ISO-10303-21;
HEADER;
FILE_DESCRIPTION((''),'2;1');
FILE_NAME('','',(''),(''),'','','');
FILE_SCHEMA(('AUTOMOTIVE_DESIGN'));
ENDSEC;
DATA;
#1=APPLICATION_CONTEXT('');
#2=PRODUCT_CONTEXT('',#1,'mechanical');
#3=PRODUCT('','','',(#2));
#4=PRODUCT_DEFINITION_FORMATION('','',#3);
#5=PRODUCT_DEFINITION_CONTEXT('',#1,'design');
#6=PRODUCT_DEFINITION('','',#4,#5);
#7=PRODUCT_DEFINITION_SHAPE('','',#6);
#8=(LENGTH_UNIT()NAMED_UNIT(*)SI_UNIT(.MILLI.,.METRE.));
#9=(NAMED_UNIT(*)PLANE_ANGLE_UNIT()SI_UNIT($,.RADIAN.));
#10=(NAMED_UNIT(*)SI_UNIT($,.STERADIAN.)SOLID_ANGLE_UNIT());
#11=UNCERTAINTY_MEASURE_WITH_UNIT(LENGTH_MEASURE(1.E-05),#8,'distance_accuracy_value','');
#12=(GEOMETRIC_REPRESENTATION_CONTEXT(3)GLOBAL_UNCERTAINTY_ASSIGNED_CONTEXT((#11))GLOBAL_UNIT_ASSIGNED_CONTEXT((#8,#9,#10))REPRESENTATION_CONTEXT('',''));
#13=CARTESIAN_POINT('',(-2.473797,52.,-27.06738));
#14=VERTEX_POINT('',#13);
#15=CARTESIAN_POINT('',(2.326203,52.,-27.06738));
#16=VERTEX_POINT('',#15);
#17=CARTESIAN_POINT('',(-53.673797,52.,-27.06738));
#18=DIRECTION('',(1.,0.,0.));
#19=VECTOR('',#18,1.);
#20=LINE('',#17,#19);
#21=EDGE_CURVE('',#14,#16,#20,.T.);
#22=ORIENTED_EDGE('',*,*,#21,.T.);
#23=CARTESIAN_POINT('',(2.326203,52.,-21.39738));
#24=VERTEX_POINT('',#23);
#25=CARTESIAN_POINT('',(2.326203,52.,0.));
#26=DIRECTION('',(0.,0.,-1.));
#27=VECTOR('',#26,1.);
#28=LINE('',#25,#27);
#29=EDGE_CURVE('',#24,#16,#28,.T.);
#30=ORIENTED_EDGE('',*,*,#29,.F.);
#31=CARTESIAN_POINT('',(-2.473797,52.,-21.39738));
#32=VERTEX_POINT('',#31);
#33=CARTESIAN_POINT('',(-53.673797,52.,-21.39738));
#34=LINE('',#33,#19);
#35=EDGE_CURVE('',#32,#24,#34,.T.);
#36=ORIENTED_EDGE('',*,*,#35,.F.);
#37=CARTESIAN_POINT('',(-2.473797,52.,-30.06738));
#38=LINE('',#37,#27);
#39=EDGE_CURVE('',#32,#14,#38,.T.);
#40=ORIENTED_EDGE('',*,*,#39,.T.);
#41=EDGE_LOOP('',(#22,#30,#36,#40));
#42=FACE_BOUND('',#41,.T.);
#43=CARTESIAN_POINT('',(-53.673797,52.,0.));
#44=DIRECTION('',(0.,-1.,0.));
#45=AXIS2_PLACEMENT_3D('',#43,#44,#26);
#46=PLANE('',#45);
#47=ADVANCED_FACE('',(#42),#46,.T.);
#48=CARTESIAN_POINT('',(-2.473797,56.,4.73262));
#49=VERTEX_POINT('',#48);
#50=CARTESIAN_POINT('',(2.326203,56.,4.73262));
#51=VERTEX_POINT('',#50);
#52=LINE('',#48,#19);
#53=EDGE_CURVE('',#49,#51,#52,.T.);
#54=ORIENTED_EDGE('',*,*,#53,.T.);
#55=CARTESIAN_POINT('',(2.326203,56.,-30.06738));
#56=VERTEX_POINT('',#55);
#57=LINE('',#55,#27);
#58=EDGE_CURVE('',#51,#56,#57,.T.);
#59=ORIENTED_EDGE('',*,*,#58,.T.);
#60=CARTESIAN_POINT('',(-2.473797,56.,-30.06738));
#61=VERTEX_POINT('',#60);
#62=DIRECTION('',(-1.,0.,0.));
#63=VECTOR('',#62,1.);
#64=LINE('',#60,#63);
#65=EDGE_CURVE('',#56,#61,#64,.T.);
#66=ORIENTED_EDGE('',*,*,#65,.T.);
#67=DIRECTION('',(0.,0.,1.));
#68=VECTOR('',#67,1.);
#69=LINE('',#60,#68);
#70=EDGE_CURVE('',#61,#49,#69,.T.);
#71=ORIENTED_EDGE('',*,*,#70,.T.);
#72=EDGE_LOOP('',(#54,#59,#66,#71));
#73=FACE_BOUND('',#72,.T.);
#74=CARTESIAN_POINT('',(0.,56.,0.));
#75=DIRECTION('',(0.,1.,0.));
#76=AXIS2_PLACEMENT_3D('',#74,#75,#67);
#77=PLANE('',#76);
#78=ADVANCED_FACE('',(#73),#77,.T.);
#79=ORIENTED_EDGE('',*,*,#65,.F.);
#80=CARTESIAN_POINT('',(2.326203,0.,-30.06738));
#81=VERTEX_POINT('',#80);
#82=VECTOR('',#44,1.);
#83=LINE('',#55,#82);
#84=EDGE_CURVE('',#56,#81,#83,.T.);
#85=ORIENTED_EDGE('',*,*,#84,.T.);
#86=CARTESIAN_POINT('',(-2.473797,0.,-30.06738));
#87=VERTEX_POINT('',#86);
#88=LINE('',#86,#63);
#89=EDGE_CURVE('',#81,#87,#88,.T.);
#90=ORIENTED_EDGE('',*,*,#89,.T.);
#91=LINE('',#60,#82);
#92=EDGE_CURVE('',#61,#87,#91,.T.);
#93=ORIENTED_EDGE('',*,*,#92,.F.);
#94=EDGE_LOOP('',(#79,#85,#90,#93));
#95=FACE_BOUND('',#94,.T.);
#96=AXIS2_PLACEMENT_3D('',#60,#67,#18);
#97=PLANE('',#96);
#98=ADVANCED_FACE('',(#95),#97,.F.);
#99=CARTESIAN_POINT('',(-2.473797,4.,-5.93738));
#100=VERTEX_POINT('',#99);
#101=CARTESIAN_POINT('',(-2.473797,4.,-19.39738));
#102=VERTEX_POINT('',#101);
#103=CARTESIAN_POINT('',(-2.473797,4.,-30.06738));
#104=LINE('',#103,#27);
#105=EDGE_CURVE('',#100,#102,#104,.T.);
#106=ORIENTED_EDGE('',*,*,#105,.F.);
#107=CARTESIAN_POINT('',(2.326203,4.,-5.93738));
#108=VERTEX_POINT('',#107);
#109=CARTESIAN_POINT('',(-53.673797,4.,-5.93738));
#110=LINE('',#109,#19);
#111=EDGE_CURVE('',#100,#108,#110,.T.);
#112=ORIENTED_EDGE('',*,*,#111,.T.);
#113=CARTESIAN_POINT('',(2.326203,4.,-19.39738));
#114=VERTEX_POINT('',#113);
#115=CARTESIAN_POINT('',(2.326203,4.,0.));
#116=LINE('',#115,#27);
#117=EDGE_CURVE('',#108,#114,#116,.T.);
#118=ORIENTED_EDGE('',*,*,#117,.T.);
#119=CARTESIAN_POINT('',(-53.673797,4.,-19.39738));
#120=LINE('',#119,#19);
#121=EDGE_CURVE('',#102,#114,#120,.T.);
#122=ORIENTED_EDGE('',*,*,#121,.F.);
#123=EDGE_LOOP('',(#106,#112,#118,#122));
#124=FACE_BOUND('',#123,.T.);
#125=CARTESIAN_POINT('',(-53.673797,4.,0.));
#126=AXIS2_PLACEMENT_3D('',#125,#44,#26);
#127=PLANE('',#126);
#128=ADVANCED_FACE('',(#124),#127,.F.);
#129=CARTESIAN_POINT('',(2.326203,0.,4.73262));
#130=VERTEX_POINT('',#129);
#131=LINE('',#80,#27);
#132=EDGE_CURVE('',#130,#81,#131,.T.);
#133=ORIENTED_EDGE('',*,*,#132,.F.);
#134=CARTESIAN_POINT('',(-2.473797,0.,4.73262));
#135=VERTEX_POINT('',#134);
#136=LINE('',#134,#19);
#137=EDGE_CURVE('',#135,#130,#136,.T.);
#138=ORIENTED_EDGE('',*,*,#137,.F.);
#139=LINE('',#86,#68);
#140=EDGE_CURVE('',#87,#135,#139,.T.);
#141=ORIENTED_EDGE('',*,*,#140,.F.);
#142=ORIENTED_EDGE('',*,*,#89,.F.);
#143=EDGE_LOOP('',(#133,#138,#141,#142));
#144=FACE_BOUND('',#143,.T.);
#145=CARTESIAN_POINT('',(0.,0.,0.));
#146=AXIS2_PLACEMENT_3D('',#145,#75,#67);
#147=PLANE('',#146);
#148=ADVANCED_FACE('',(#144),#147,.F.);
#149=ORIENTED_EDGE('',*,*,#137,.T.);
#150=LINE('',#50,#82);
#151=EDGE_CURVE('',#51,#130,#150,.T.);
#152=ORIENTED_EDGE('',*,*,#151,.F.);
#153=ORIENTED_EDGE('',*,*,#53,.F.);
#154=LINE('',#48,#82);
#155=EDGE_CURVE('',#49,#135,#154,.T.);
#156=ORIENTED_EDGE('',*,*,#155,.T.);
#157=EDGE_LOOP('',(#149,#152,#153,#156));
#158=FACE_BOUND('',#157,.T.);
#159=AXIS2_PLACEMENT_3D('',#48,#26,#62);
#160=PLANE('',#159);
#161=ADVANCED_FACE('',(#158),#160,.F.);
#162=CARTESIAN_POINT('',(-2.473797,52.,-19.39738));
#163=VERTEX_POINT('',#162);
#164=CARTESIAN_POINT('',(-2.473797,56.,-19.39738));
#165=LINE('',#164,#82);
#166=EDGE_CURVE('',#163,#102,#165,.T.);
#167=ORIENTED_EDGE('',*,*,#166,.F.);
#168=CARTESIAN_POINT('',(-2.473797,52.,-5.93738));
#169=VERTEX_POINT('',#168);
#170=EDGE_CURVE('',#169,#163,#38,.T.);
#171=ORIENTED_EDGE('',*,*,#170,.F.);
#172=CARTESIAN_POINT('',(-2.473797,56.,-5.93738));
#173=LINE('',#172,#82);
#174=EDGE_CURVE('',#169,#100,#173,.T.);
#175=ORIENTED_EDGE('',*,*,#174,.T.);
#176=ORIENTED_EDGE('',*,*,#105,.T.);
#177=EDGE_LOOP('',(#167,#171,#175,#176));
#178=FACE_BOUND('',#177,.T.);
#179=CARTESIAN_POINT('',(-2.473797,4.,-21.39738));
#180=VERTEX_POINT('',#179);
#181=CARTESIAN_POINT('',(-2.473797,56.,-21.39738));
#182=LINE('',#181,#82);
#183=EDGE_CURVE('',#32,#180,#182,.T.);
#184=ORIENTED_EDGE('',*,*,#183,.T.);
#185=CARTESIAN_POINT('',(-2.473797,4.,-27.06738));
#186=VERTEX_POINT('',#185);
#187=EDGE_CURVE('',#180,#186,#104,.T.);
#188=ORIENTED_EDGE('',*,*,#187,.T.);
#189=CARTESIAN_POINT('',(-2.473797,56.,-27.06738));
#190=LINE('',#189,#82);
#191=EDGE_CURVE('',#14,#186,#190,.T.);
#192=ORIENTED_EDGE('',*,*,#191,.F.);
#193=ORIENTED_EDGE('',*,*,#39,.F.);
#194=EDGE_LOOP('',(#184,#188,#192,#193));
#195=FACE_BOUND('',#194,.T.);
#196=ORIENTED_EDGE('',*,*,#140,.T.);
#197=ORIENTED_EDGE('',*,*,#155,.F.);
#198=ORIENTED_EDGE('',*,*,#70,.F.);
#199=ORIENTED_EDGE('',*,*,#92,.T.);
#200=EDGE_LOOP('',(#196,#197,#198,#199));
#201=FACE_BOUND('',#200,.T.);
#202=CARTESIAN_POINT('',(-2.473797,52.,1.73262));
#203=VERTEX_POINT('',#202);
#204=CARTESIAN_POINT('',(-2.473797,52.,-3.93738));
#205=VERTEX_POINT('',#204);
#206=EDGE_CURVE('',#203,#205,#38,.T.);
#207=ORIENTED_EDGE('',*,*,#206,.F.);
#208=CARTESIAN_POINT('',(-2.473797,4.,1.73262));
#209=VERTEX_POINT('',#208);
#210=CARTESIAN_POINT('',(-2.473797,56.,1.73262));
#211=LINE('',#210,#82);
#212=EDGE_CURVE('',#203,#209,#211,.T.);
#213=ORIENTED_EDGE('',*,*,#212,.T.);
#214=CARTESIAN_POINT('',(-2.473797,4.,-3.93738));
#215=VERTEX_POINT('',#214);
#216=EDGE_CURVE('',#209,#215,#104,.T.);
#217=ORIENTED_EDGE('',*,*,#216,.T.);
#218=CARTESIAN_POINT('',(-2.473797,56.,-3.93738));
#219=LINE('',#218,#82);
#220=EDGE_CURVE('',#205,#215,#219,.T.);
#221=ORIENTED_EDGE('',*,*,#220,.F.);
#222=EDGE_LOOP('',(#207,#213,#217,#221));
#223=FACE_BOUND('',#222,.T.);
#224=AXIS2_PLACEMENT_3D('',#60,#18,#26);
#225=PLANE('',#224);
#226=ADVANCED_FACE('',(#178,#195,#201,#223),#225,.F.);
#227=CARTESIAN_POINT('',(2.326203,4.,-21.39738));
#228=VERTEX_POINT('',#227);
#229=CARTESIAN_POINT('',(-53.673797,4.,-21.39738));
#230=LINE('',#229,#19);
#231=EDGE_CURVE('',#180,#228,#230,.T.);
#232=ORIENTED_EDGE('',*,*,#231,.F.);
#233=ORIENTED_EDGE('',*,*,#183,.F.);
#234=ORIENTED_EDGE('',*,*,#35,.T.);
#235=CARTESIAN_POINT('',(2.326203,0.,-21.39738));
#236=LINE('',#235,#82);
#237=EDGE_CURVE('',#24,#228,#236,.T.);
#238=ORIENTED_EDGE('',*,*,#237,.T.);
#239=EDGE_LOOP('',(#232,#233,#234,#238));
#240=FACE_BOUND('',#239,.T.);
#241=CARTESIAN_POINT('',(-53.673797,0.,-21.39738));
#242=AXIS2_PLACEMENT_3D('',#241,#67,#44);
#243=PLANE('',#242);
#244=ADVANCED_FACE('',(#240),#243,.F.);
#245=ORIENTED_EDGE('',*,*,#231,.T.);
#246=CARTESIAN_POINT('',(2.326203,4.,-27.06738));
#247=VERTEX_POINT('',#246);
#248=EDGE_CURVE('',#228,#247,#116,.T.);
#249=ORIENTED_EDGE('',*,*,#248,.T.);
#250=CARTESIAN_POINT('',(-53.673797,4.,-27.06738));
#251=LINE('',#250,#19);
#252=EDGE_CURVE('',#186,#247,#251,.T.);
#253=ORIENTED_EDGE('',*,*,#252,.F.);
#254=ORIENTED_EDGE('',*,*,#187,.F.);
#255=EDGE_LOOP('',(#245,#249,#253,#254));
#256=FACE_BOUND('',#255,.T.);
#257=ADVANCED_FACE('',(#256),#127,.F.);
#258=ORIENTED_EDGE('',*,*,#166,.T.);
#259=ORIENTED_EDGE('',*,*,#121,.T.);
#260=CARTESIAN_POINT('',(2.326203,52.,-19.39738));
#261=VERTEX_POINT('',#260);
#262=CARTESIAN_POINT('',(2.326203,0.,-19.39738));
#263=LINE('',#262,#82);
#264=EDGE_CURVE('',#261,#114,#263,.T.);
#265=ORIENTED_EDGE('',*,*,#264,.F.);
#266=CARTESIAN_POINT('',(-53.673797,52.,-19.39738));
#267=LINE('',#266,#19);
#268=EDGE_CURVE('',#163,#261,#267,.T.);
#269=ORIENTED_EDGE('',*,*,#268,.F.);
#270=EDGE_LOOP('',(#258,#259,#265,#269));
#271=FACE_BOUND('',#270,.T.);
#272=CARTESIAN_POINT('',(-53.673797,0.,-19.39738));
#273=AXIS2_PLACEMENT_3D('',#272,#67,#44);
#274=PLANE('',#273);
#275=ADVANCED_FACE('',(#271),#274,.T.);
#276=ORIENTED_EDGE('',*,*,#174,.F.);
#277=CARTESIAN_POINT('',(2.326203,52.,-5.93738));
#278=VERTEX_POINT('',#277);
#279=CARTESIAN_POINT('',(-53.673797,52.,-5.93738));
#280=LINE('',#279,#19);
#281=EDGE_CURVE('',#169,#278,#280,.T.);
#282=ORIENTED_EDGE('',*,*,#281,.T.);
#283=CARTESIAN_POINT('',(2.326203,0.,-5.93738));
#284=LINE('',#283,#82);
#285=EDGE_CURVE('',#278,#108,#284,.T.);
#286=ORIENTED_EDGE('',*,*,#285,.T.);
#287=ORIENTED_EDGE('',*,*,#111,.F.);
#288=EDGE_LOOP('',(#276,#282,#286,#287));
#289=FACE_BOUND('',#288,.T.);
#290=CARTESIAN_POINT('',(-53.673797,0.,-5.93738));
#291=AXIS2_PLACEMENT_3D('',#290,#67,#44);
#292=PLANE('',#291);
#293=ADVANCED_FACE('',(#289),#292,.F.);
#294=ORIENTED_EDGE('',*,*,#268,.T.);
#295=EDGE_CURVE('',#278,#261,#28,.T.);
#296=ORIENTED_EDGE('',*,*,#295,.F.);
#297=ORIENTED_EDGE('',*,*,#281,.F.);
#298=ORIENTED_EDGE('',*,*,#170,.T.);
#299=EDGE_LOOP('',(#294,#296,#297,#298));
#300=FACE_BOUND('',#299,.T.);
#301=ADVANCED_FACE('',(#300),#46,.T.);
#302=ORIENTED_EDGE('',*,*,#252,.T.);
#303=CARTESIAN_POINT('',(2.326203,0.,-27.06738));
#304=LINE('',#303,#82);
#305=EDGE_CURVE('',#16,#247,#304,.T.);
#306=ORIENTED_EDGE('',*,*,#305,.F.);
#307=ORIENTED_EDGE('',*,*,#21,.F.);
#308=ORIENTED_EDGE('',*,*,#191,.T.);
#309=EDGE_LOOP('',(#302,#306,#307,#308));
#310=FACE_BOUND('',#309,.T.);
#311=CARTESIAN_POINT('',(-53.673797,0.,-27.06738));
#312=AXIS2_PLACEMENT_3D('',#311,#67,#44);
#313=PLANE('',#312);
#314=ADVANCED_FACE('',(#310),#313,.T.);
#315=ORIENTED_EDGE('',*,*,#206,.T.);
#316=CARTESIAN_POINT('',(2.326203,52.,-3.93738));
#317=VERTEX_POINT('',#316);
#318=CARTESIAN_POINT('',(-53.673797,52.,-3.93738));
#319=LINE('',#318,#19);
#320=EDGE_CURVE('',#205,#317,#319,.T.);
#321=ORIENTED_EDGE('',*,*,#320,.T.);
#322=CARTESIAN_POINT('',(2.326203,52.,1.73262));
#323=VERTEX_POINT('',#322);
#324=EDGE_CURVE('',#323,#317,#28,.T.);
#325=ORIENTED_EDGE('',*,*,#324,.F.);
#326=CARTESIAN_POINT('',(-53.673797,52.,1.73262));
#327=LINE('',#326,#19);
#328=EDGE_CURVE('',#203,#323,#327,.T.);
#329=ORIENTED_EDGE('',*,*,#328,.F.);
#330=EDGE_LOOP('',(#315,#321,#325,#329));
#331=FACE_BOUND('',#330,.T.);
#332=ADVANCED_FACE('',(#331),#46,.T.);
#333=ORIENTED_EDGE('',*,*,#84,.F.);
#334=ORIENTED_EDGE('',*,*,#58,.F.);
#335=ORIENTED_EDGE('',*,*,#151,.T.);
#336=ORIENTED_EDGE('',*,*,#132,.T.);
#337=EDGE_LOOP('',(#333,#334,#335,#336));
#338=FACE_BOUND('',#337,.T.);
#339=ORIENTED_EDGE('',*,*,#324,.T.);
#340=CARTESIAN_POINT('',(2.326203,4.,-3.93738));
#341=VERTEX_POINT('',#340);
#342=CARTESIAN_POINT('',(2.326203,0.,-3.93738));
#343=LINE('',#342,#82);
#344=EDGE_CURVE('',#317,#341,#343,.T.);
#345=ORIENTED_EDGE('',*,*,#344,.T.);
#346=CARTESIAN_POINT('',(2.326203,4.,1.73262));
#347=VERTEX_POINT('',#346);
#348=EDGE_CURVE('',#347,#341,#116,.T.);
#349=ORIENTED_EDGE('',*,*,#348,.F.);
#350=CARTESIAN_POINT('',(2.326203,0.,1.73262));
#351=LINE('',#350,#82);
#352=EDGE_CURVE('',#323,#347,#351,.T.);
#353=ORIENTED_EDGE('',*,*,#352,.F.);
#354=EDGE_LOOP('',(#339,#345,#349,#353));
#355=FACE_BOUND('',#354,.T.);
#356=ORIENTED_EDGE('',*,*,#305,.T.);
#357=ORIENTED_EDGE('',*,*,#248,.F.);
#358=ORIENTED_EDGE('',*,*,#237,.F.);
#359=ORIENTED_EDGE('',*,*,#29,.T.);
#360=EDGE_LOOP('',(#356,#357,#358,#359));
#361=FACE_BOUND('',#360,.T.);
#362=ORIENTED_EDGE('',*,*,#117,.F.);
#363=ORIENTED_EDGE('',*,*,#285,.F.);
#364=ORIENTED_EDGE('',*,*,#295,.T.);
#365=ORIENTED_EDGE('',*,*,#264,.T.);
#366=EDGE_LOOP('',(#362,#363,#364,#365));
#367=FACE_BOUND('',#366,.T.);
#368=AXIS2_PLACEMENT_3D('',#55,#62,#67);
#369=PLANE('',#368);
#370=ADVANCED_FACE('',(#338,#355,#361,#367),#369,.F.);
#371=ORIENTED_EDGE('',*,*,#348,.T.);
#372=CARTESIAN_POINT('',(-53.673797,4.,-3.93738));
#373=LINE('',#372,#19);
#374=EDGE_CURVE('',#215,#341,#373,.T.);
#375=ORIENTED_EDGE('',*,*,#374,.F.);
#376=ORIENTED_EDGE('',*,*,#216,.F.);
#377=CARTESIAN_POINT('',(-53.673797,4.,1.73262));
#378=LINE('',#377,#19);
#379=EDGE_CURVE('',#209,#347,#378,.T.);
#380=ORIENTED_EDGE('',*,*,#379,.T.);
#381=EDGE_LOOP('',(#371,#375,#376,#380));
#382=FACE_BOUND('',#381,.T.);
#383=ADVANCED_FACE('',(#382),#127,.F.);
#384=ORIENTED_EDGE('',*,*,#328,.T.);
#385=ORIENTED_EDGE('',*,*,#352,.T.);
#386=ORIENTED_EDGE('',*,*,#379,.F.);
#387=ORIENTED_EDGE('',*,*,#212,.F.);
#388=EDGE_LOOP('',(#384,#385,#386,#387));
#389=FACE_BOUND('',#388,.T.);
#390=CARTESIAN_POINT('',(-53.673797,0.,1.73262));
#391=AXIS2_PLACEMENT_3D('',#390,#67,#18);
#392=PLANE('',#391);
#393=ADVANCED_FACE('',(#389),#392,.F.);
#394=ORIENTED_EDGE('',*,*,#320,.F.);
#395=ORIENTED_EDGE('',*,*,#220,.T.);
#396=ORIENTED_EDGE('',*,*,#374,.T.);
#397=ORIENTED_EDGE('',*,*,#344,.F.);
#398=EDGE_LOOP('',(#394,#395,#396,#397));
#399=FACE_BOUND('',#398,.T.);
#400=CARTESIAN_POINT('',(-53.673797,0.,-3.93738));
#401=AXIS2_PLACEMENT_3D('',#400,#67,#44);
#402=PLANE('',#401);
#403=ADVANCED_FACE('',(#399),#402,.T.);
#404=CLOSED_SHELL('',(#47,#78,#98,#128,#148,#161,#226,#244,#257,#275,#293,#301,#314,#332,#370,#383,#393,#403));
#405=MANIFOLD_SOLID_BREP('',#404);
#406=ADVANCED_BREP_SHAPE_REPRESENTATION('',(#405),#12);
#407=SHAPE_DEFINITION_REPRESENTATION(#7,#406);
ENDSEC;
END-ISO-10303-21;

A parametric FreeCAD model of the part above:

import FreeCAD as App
import Part
import Sketcher
from FreeCAD import Vector


def add_polygon(sketch, points):
    """Adds a closed chain of lines whose ends are joined by coincident constraints."""
    first, n = sketch.GeometryCount, len(points)
    for a, b in zip(points, points[1:] + points[:1]):
        sketch.addGeometry(Part.LineSegment(App.Vector(*a, 0), App.Vector(*b, 0)), False)
    for i in range(n):
        sketch.addConstraint(Sketcher.Constraint("Coincident", first + i, 2, first + (i + 1) % n, 1))

doc = App.newDocument("Part")
body = doc.addObject("PartDesign::Body", "Body")

# Sketch on XZ plane
sketch1 = body.newObject("Sketcher::SketchObject", "Sketch")
sketch1.AttachmentSupport = (doc.getObject("XZ_Plane"), [""])
sketch1.MapMode = "FlatFace"
add_polygon(sketch1, [(-2.473797, -30.06738), (-2.473797, 4.73262), (2.326203, 4.73262), (2.326203, -30.06738)])  # lines 0-3
sketch1.addConstraint(Sketcher.Constraint("Vertical", 0))
sketch1.addConstraint(Sketcher.Constraint("Horizontal", 1))
sketch1.addConstraint(Sketcher.Constraint("Vertical", 2))
sketch1.addConstraint(Sketcher.Constraint("Horizontal", 3))
sketch1.addConstraint(Sketcher.Constraint("DistanceX", 1, 1, 1, 2, 4.8))
sketch1.addConstraint(Sketcher.Constraint("DistanceY", 0, 1, 0, 2, 34.8))
sketch1.addConstraint(Sketcher.Constraint("DistanceY", -1, 1, 0, 2, 4.73262))
sketch1.addConstraint(Sketcher.Constraint("DistanceX", 0, 2, -1, 1, 2.473797))
pad1 = body.newObject("PartDesign::Pad", "Pad")
pad1.Profile = sketch1
pad1.Length = 56
pad1.Reversed = True

# Sketch on YZ plane
sketch2 = body.newObject("Sketcher::SketchObject", "Sketch001")
sketch2.AttachmentSupport = (doc.getObject("YZ_Plane"), [""])
sketch2.MapMode = "FlatFace"
sketch2.AttachmentOffset = App.Placement(Vector(0, 0, 2.326203), App.Rotation())
add_polygon(sketch2, [(52, 1.73262), (4, 1.73262), (4, -3.93738), (52, -3.93738)])  # lines 0-3
add_polygon(sketch2, [(52, -5.93738), (4, -5.93738), (4, -19.39738), (52, -19.39738)])  # lines 4-7
add_polygon(sketch2, [(52, -21.39738), (4, -21.39738), (4, -27.06738), (52, -27.06738)])  # lines 8-11
sketch2.addConstraint(Sketcher.Constraint("Horizontal", 0))
sketch2.addConstraint(Sketcher.Constraint("Vertical", 1))
sketch2.addConstraint(Sketcher.Constraint("Horizontal", 2))
sketch2.addConstraint(Sketcher.Constraint("Vertical", 3))
sketch2.addConstraint(Sketcher.Constraint("Horizontal", 4))
sketch2.addConstraint(Sketcher.Constraint("Vertical", 5))
sketch2.addConstraint(Sketcher.Constraint("Horizontal", 6))
sketch2.addConstraint(Sketcher.Constraint("Vertical", 7))
sketch2.addConstraint(Sketcher.Constraint("Horizontal", 8))
sketch2.addConstraint(Sketcher.Constraint("Vertical", 9))
sketch2.addConstraint(Sketcher.Constraint("Horizontal", 10))
sketch2.addConstraint(Sketcher.Constraint("Vertical", 11))
sketch2.addConstraint(Sketcher.Constraint("Vertical", 1, 2, 4, 2))
sketch2.addConstraint(Sketcher.Constraint("Vertical", 3, 2, 6, 2))
sketch2.addConstraint(Sketcher.Constraint("Vertical", 5, 2, 8, 2))
sketch2.addConstraint(Sketcher.Constraint("Vertical", 7, 2, 10, 2))
sketch2.addConstraint(Sketcher.Constraint("Equal", 3, 9))
sketch2.addConstraint(Sketcher.Constraint("DistanceX", 0, 2, 0, 1, 48.0))
sketch2.addConstraint(Sketcher.Constraint("DistanceX", -1, 1, 0, 2, 4.0))
sketch2.addConstraint(Sketcher.Constraint("DistanceY", 4, 2, 1, 2, 2.0))
sketch2.addConstraint(Sketcher.Constraint("DistanceY", 8, 2, 5, 2, 2.0))
sketch2.addConstraint(Sketcher.Constraint("DistanceY", 1, 2, 1, 1, 5.67))
sketch2.addConstraint(Sketcher.Constraint("DistanceY", 5, 2, 5, 1, 13.46))
sketch2.addConstraint(Sketcher.Constraint("DistanceY", -1, 1, 0, 2, 1.73262))
pocket1 = body.newObject("PartDesign::Pocket", "Pocket")
pocket1.Profile = sketch2
pocket1.Length = 56

doc.recompute()
